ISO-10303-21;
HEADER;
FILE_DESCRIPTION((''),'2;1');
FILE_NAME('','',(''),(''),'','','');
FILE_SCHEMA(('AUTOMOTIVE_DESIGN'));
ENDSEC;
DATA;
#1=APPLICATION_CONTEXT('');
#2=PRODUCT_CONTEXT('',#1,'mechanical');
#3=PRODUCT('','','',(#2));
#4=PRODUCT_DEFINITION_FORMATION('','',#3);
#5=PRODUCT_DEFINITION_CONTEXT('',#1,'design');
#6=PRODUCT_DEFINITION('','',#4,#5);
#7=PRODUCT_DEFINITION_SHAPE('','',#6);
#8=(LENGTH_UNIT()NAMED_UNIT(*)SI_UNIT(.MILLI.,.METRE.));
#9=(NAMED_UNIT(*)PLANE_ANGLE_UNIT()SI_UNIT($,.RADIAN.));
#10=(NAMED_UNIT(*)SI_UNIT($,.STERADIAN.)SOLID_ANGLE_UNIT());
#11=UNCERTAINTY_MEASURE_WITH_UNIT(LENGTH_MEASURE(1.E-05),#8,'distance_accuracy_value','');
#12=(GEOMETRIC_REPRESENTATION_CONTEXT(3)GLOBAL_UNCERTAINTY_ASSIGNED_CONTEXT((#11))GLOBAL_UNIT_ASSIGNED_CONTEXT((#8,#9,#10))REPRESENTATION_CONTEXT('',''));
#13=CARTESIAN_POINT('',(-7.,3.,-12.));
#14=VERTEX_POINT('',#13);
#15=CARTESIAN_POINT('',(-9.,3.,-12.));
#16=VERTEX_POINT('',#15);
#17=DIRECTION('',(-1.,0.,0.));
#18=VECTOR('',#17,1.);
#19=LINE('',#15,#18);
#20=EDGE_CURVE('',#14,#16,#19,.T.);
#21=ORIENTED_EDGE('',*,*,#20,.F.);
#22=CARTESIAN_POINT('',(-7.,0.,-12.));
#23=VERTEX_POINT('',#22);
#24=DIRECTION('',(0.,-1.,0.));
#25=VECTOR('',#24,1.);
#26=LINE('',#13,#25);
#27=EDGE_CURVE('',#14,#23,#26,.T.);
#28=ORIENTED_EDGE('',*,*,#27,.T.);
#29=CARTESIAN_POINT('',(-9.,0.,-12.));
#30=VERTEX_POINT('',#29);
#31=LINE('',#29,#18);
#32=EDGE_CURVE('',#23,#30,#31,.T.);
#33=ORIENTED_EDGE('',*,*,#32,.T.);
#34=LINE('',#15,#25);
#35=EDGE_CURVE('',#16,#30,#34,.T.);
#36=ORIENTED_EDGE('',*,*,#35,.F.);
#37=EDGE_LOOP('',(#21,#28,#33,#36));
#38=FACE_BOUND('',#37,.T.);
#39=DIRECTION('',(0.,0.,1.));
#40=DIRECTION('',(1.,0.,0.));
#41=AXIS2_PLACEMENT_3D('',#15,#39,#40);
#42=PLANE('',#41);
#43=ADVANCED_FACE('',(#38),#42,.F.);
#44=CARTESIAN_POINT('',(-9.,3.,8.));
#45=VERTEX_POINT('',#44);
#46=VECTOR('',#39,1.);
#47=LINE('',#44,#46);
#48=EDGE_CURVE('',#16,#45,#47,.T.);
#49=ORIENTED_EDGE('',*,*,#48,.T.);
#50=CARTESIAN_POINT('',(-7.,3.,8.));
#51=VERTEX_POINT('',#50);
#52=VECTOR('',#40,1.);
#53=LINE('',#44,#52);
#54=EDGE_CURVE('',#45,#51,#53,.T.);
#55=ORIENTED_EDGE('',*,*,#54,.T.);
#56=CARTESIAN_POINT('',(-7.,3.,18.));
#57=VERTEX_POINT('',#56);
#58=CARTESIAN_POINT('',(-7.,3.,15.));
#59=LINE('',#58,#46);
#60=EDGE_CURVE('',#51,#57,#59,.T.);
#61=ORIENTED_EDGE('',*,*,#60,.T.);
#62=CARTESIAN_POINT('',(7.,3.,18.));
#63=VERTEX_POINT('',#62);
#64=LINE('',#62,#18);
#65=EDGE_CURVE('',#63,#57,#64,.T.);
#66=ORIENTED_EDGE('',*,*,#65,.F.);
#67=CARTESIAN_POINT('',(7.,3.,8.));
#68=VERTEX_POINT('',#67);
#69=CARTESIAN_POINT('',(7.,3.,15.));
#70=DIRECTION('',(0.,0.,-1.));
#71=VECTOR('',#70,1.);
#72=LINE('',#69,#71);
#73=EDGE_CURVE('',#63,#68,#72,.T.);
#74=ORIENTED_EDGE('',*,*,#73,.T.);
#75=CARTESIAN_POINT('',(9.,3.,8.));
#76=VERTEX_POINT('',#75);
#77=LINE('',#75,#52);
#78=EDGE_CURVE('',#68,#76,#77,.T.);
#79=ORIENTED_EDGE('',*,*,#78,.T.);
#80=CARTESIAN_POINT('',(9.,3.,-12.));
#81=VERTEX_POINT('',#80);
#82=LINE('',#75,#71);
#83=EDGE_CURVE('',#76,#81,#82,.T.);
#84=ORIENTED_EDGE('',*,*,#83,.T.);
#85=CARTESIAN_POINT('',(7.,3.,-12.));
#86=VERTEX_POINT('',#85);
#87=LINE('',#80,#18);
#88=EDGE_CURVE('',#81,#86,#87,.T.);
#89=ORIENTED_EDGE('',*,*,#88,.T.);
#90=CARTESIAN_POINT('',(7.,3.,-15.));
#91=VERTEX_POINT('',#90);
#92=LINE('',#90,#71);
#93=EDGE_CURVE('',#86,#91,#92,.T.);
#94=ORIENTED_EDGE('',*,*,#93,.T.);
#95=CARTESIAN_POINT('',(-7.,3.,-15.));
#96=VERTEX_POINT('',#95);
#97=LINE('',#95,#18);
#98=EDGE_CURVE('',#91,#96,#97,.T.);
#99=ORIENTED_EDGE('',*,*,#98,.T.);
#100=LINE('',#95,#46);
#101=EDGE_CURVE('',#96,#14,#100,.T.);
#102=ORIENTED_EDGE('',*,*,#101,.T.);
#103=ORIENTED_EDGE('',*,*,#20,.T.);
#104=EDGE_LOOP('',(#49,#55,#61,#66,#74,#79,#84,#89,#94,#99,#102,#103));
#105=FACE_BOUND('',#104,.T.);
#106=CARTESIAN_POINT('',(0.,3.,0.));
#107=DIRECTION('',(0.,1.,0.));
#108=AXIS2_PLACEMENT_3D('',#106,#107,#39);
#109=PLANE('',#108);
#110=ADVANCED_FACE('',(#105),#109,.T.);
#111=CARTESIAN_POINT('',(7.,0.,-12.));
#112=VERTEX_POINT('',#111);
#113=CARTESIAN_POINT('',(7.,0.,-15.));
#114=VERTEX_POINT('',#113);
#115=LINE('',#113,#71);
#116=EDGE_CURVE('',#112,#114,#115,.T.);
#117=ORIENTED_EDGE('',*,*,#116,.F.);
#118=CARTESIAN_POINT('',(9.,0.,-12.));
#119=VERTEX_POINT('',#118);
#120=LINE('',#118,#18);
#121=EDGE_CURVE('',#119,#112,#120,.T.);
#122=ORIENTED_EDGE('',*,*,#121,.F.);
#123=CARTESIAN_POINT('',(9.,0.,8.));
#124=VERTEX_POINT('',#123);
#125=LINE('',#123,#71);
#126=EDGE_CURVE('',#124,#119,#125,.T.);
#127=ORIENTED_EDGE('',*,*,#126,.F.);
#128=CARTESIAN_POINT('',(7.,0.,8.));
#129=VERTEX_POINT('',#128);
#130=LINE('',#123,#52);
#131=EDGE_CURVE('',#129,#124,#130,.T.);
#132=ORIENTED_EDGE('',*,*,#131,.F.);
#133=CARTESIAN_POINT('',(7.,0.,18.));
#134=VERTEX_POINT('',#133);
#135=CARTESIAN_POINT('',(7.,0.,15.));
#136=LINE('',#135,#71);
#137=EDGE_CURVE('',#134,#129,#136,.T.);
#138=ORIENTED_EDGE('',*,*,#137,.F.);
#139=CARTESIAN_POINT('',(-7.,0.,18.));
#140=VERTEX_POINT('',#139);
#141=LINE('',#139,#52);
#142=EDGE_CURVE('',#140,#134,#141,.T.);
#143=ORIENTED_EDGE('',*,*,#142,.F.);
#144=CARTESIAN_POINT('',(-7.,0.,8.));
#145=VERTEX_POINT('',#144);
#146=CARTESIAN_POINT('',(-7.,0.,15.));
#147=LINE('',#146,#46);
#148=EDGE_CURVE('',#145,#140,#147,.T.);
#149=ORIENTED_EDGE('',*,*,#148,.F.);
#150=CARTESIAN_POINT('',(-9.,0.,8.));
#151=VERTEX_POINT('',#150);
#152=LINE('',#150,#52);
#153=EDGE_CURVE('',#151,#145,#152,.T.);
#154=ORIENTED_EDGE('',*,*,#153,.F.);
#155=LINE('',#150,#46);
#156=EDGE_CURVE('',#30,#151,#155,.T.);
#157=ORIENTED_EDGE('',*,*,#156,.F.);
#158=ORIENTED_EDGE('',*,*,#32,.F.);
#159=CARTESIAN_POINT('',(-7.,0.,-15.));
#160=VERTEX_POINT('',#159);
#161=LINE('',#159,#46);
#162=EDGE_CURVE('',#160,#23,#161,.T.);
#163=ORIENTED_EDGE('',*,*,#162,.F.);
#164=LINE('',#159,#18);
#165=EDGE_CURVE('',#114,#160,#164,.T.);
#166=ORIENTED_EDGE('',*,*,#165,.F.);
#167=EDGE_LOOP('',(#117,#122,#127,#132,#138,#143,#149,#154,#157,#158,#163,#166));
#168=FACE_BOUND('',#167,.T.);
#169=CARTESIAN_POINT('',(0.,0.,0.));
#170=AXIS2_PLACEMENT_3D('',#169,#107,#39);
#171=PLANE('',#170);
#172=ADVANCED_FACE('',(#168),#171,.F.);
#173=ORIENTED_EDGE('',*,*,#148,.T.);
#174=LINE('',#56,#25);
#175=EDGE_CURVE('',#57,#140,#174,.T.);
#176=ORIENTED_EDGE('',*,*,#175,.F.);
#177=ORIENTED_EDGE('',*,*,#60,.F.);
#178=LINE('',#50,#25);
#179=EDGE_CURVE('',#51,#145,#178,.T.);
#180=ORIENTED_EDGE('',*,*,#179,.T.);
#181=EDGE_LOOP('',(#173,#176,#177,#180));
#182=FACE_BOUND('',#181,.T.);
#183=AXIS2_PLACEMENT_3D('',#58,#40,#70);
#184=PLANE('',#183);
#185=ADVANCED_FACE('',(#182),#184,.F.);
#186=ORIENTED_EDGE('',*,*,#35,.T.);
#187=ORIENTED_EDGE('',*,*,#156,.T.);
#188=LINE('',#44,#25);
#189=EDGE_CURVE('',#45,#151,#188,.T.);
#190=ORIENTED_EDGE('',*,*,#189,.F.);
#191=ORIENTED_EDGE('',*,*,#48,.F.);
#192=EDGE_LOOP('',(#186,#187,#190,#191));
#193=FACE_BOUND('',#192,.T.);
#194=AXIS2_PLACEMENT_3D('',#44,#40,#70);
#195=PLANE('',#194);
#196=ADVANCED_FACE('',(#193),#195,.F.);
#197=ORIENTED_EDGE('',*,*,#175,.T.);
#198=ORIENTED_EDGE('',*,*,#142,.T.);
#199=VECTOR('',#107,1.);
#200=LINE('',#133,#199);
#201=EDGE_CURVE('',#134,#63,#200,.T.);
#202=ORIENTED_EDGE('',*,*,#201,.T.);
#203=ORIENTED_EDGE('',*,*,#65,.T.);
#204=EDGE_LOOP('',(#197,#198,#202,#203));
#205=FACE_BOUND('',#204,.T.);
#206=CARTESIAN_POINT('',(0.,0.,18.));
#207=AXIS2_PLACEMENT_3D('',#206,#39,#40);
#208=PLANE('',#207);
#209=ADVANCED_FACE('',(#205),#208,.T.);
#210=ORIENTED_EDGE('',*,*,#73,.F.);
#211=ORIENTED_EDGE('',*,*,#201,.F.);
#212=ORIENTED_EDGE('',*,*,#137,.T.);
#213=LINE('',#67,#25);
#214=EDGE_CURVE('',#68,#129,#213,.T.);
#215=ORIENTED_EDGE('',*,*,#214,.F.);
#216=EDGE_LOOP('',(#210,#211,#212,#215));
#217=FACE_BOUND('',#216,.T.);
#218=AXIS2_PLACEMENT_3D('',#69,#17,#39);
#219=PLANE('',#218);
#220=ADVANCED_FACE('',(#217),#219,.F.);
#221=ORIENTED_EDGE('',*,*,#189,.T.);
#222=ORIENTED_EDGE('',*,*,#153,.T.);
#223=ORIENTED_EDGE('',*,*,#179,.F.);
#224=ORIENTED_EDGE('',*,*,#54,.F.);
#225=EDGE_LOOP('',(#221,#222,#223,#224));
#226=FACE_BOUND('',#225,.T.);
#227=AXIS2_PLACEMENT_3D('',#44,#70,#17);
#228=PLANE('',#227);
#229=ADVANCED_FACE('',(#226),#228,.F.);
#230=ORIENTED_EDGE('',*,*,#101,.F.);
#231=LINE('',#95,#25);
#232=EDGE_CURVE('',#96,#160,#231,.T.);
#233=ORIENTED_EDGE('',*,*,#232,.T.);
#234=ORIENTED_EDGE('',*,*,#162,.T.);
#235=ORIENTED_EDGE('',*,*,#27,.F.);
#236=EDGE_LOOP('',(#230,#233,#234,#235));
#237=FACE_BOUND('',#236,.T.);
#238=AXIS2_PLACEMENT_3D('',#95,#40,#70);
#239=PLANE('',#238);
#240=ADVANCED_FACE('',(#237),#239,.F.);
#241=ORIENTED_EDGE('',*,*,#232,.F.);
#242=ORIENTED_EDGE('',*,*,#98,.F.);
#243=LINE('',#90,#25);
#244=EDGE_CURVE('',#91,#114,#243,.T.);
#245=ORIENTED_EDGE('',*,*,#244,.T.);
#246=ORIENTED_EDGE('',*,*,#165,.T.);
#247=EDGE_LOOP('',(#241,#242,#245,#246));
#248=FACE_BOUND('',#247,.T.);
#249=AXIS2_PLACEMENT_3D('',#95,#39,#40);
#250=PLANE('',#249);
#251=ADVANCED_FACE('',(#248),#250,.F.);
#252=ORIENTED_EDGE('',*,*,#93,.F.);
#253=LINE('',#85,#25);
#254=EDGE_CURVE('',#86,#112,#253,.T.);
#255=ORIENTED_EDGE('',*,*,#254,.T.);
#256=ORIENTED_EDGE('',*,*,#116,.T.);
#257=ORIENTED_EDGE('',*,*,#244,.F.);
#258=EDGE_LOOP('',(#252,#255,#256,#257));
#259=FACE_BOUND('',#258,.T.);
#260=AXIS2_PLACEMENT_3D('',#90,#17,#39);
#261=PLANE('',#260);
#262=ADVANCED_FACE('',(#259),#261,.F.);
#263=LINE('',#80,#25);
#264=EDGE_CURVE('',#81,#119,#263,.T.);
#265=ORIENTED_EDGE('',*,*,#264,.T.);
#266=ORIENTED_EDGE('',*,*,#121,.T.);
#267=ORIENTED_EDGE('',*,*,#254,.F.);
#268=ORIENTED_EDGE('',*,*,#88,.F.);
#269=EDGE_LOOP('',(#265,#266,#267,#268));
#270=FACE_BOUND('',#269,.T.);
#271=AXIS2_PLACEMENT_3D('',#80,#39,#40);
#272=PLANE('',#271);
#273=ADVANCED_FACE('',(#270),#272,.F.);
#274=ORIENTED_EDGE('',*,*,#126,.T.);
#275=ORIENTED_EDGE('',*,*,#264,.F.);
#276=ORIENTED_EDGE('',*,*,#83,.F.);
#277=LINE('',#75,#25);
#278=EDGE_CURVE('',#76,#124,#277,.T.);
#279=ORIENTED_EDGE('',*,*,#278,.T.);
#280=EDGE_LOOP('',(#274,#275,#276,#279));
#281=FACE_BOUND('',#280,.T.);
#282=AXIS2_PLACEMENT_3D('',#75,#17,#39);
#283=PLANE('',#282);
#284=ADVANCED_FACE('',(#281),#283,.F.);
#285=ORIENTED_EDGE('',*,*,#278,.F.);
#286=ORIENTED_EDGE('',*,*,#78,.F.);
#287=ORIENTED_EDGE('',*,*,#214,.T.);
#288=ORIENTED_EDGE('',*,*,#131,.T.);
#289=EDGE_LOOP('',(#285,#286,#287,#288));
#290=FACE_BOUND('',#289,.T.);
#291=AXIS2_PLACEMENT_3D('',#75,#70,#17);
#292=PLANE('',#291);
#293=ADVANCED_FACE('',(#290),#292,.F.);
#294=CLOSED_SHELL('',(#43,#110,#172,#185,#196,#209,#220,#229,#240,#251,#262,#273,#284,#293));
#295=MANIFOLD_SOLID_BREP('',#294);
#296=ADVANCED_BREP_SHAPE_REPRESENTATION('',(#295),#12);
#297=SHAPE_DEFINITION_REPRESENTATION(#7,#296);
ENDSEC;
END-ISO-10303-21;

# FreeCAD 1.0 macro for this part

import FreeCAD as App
import Part
import Sketcher
from FreeCAD import Vector

doc = App.newDocument("Part")
body = doc.addObject("PartDesign::Body", "Body")

# Sketch on XZ plane
sketch1 = body.newObject("Sketcher::SketchObject", "Sketch")
sketch1.AttachmentSupport = (doc.getObject("XZ_Plane"), [""])
sketch1.MapMode = "FlatFace"
sketch1.addGeometry(Part.LineSegment(Vector(-7, 15, 0), Vector(7, 15, 0)), False)
sketch1.addGeometry(Part.LineSegment(Vector(7, 15, 0), Vector(7, 8, 0)), False)
sketch1.addGeometry(Part.LineSegment(Vector(7, 8, 0), Vector(9, 8, 0)), False)
sketch1.addGeometry(Part.LineSegment(Vector(9, 8, 0), Vector(9, -12, 0)), False)
sketch1.addGeometry(Part.LineSegment(Vector(9, -12, 0), Vector(7, -12, 0)), False)
sketch1.addGeometry(Part.LineSegment(Vector(7, -12, 0), Vector(7, -15, 0)), False)
sketch1.addGeometry(Part.LineSegment(Vector(7, -15, 0), Vector(-7, -15, 0)), False)
sketch1.addGeometry(Part.LineSegment(Vector(-7, -15, 0), Vector(-7, -12, 0)), False)
sketch1.addGeometry(Part.LineSegment(Vector(-7, -12, 0), Vector(-9, -12, 0)), False)
sketch1.addGeometry(Part.LineSegment(Vector(-9, -12, 0), Vector(-9, 8, 0)), False)
sketch1.addGeometry(Part.LineSegment(Vector(-9, 8, 0), Vector(-7, 8, 0)), False)
sketch1.addGeometry(Part.LineSegment(Vector(-7, 8, 0), Vector(-7, 15, 0)), False)
sketch1.addConstraint(Sketcher.Constraint("Coincident", 0, 2, 1, 1))
sketch1.addConstraint(Sketcher.Constraint("Coincident", 1, 2, 2, 1))
sketch1.addConstraint(Sketcher.Constraint("Coincident", 2, 2, 3, 1))
sketch1.addConstraint(Sketcher.Constraint("Coincident", 3, 2, 4, 1))
sketch1.addConstraint(Sketcher.Constraint("Coincident", 4, 2, 5, 1))
sketch1.addConstraint(Sketcher.Constraint("Coincident", 5, 2, 6, 1))
sketch1.addConstraint(Sketcher.Constraint("Coincident", 6, 2, 7, 1))
sketch1.addConstraint(Sketcher.Constraint("Coincident", 7, 2, 8, 1))
sketch1.addConstraint(Sketcher.Constraint("Coincident", 8, 2, 9, 1))
sketch1.addConstraint(Sketcher.Constraint("Coincident", 9, 2, 10, 1))
sketch1.addConstraint(Sketcher.Constraint("Coincident", 10, 2, 11, 1))
sketch1.addConstraint(Sketcher.Constraint("Coincident", 11, 2, 0, 1))
sketch1.addConstraint(Sketcher.Constraint("Horizontal", 0))
sketch1.addConstraint(Sketcher.Constraint("Vertical", 1))
sketch1.addConstraint(Sketcher.Constraint("Horizontal", 2))
sketch1.addConstraint(Sketcher.Constraint("Vertical", 3))
sketch1.addConstraint(Sketcher.Constraint("Horizontal", 4))
sketch1.addConstraint(Sketcher.Constraint("Vertical", 5))
sketch1.addConstraint(Sketcher.Constraint("Horizontal", 6))
sketch1.addConstraint(Sketcher.Constraint("Vertical", 7))
sketch1.addConstraint(Sketcher.Constraint("Horizontal", 8))
sketch1.addConstraint(Sketcher.Constraint("Vertical", 9))
sketch1.addConstraint(Sketcher.Constraint("Horizontal", 10))
sketch1.addConstraint(Sketcher.Constraint("Vertical", 11))
sketch1.addConstraint(Sketcher.Constraint("Symmetric", 0, 2, 6, 2, -1, 1))
sketch1.addConstraint(Sketcher.Constraint("Symmetric", 4, 2, 7, 2, -2))
sketch1.addConstraint(Sketcher.Constraint("Symmetric", 2, 2, 9, 2, -2))
sketch1.addConstraint(Sketcher.Constraint("Vertical", 7, 2, 10, 2))
sketch1.addConstraint(Sketcher.Constraint("DistanceX", 0, 1, 0, 2, 14.0))
sketch1.addConstraint(Sketcher.Constraint("DistanceX", 2, 1, 2, 2, 2.0))
sketch1.addConstraint(Sketcher.Constraint("DistanceY", 1, 2, 1, 1, 7.0))
sketch1.addConstraint(Sketcher.Constraint("DistanceY", 3, 2, 3, 1, 20.0))
sketch1.addConstraint(Sketcher.Constraint("DistanceY", 5, 2, 5, 1, 3.0))
pad1 = body.newObject("PartDesign::Pad", "Pad")
pad1.Profile = sketch1
pad1.Length = 3
pad1.Reversed = True

# Sketch on XY plane
sketch2 = body.newObject("Sketcher::SketchObject", "Sketch001")
sketch2.AttachmentSupport = (doc.getObject("XY_Plane"), [""])
sketch2.MapMode = "FlatFace"
sketch2.AttachmentOffset = App.Placement(Vector(0, 0, 15), App.Rotation())
sketch2.addGeometry(Part.LineSegment(Vector(-7, 3, 0), Vector(-7, 0, 0)), False)
sketch2.addGeometry(Part.LineSegment(Vector(-7, 0, 0), Vector(7, 0, 0)), False)
sketch2.addGeometry(Part.LineSegment(Vector(7, 0, 0), Vector(7, 3, 0)), False)
sketch2.addGeometry(Part.LineSegment(Vector(7, 3, 0), Vector(-7, 3, 0)), False)
sketch2.addConstraint(Sketcher.Constraint("Coincident", 0, 2, 1, 1))
sketch2.addConstraint(Sketcher.Constraint("Coincident", 1, 2, 2, 1))
sketch2.addConstraint(Sketcher.Constraint("Coincident", 2, 2, 3, 1))
sketch2.addConstraint(Sketcher.Constraint("Coincident", 3, 2, 0, 1))
sketch2.addConstraint(Sketcher.Constraint("Vertical", 0))
sketch2.addConstraint(Sketcher.Constraint("Horizontal", 1))
sketch2.addConstraint(Sketcher.Constraint("Vertical", 2))
sketch2.addConstraint(Sketcher.Constraint("Horizontal", 3))
sketch2.addConstraint(Sketcher.Constraint("Symmetric", 0, 2, 1, 2, -1, 1))
sketch2.addConstraint(Sketcher.Constraint("DistanceX", 1, 1, 1, 2, 14.0))
sketch2.addConstraint(Sketcher.Constraint("DistanceY", 0, 2, 0, 1, 3.0))
pad2 = body.newObject("PartDesign::Pad", "Pad001")
pad2.Profile = sketch2
pad2.Length = 3

doc.recompute()
